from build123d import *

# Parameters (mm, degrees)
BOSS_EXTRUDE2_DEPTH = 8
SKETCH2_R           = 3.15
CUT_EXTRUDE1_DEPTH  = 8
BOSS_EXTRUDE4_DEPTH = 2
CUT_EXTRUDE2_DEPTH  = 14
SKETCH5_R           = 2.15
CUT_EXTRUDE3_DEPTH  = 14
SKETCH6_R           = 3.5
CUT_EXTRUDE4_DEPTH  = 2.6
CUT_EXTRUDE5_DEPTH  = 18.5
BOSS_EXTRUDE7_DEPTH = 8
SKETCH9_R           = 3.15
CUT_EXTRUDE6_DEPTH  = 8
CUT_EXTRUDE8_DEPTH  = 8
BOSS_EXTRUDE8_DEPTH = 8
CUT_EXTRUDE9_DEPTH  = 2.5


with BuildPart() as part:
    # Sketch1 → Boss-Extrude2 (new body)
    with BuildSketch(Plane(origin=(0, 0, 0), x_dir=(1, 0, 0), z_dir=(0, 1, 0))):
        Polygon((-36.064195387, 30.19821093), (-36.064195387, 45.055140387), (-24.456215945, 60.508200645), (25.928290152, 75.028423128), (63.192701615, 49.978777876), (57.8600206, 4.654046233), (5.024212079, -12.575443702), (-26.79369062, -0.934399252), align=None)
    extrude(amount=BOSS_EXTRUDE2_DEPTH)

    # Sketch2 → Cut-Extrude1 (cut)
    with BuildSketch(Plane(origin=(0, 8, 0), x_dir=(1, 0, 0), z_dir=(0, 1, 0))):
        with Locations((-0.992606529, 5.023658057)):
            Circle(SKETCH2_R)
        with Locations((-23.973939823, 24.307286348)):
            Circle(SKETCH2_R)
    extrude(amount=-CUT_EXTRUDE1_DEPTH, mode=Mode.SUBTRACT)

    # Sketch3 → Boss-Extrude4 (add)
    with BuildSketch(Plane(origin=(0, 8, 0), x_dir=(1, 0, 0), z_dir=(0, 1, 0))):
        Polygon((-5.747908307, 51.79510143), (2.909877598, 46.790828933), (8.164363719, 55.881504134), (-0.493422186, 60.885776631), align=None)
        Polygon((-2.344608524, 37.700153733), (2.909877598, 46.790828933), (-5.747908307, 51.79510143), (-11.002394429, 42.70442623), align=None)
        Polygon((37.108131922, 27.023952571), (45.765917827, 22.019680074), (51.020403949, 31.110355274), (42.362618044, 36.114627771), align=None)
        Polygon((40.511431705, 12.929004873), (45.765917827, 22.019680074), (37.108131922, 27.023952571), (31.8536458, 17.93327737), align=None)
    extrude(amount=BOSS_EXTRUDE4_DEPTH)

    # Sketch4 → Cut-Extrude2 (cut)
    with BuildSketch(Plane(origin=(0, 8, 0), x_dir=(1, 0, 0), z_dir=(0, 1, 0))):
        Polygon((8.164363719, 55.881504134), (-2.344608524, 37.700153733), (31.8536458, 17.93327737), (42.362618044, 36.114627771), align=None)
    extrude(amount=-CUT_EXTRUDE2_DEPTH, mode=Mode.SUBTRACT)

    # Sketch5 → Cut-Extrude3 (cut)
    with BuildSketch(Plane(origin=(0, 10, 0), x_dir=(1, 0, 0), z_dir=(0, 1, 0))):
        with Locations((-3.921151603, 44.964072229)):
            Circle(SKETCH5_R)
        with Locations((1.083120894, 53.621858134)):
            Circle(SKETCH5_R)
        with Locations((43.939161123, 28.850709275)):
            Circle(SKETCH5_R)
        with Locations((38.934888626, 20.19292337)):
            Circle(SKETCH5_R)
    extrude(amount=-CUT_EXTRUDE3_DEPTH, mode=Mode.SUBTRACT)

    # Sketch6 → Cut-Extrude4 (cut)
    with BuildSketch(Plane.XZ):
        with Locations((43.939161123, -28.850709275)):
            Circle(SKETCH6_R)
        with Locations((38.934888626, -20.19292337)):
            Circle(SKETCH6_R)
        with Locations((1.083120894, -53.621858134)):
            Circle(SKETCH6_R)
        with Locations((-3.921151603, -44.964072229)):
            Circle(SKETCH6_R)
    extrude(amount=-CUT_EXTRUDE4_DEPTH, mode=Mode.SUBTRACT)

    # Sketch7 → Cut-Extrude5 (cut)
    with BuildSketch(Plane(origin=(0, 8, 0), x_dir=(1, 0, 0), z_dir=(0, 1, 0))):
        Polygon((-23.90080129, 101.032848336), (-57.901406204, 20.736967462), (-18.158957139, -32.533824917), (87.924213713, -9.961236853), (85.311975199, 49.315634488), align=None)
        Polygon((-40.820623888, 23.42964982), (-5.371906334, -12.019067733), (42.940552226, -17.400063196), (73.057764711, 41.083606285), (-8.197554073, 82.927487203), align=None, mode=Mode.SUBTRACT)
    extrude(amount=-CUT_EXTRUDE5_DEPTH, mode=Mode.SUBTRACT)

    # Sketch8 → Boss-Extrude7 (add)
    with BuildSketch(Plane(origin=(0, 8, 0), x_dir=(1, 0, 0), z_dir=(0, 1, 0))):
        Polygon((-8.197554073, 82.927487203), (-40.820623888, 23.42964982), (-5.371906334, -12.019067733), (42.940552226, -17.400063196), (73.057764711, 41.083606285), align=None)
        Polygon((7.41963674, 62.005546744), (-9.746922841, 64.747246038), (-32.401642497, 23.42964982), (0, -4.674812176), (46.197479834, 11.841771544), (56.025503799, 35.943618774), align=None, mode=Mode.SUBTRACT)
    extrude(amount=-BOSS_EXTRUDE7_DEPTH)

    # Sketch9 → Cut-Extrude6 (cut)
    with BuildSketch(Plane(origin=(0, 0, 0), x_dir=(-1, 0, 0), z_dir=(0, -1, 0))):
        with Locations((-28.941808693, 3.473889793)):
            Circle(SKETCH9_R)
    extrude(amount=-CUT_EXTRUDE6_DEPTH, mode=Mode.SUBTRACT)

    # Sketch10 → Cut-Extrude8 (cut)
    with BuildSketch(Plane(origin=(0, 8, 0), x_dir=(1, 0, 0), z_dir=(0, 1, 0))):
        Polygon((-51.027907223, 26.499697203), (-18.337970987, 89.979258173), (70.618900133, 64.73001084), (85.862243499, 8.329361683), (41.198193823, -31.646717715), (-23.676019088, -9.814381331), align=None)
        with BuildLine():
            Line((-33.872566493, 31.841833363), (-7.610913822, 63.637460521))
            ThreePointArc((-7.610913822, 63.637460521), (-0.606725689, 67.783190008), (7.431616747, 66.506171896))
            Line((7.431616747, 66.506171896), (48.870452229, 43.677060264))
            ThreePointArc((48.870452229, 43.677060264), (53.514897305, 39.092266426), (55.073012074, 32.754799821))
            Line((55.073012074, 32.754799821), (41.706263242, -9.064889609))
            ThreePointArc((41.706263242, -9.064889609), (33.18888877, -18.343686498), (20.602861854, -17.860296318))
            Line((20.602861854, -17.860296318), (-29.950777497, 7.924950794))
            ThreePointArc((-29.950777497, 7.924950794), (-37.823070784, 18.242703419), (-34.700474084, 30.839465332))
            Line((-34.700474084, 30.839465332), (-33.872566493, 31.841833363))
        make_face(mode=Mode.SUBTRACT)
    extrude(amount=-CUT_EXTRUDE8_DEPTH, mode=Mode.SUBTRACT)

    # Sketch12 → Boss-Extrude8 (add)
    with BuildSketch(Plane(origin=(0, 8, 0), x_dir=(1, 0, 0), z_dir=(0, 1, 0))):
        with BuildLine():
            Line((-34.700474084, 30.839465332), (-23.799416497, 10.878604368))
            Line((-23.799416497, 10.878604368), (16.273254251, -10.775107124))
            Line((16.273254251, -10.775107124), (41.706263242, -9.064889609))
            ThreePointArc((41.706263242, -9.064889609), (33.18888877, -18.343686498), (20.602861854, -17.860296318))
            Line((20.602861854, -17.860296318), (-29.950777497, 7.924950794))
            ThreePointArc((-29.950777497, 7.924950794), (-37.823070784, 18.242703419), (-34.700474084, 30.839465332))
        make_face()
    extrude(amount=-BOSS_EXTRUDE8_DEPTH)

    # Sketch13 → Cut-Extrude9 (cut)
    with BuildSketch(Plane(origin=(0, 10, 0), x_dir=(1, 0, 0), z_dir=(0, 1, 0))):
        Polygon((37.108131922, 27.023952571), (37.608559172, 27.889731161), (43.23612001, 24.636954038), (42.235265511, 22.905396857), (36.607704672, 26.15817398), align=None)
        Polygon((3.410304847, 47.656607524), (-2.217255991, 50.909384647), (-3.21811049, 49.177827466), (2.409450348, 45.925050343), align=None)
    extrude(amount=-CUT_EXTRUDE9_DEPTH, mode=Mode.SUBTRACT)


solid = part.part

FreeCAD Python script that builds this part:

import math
import FreeCAD as App
import Part
import Sketcher

V = App.Vector
Q = App.Units.Quantity


def add_polygon(sketch, points):
    """Adds a closed chain of lines whose ends are joined by coincident constraints."""
    first, n = sketch.GeometryCount, len(points)
    for a, b in zip(points, points[1:] + points[:1]):
        sketch.addGeometry(Part.LineSegment(App.Vector(*a, 0), App.Vector(*b, 0)), False)
    for i in range(n):
        sketch.addConstraint(Sketcher.Constraint("Coincident", first + i, 2, first + (i + 1) % n, 1))

doc = App.newDocument("Part")
body = doc.addObject("PartDesign::Body", "Body")

sketch1 = body.newObject("Sketcher::SketchObject", "Sketch")
sketch1.AttachmentSupport = (doc.getObject("XZ_Plane"), [""])
sketch1.MapMode = "FlatFace"
add_polygon(sketch1, [(-36.064195, -45.05514), (-36.064195, -30.198211), (-26.793691, 0.934399), (5.024212, 12.575444), (57.860021, -4.654046), (63.192702, -49.978778), (25.92829, -75.028423), (-24.456216, -60.508201)])
sketch1.addConstraint(Sketcher.Constraint("Vertical", 0))
sketch1.addConstraint(Sketcher.Constraint("DistanceY", 0, 1, 0, 2, 14.856929))
sketch1.addConstraint(Sketcher.Constraint("DistanceY", -1, 1, 1, 2, 0.934399))
sketch1.addConstraint(Sketcher.Constraint("DistanceX", -1, 1, 4, 2, 63.192702))
sketch1.addConstraint(Sketcher.Constraint("DistanceY", 6, 2, -1, 1, 60.508201))
sketch1.addConstraint(Sketcher.Constraint("Distance", 1, 32.48356))
sketch1.addConstraint(Sketcher.Constraint("Distance", 4, 45.637362))
sketch1.addConstraint(Sketcher.Constraint("Distance", 6, 52.435058))
sketch1.addConstraint(Sketcher.Constraint("Distance", 7, 19.327241))
sketch1.addConstraint(Sketcher.Constraint("DistanceY", 0, 2, -1, 1, 30.198211))
sketch1.addConstraint(Sketcher.Constraint("DistanceX", 1, 2, -1, 1, 26.793691))
sketch1.addConstraint(Sketcher.Constraint("DistanceX", -1, 1, 3, 2, 57.860021))
sketch1.addConstraint(Sketcher.Constraint("DistanceX", -1, 1, 5, 2, 25.92829))
sketch1.addConstraint(Sketcher.Constraint("DistanceX", 2, 2, 3, 2, 52.835809))
sketch1.addConstraint(Sketcher.Constraint("DistanceY", 3, 2, 2, 2, 17.22949))
sketch1.addConstraint(Sketcher.Constraint("Distance", 2, 33.880567))
pad1 = body.newObject("PartDesign::Pad", "Pad")
pad1.Profile = sketch1
pad1.Length = 8
pad1.Reversed = True

sketch2 = body.newObject("Sketcher::SketchObject", "Sketch001")
sketch2.AttachmentSupport = (doc.getObject("XZ_Plane"), [""])
sketch2.MapMode = "FlatFace"
sketch2.AttachmentOffset = App.Placement(V(0, 0, -8), App.Rotation())
sketch2.addGeometry(Part.Circle(V(-0.992607, -5.023658, 0), V(0, 0, 1), 3.15), False)
sketch2.addGeometry(Part.Circle(V(-23.97394, -24.307286, 0), V(0, 0, 1), 3.15), False)
sketch2.addConstraint(Sketcher.Constraint("Equal", 0, 1))
sketch2.addConstraint(Sketcher.Constraint("Diameter", 0, 6.3))
sketch2.addConstraint(Sketcher.Constraint("DistanceY", 0, 3, -1, 1, 5.023658))
sketch2.addConstraint(Sketcher.Constraint("DistanceX", 1, 3, -1, 1, 23.97394))
sketch2.addConstraint(Sketcher.Constraint("DistanceY", 1, 3, 0, 3, 19.283628))
sketch2.addConstraint(Sketcher.Constraint("DistanceX", 0, 3, -1, 1, 0.992607))
pocket1 = body.newObject("PartDesign::Pocket", "Pocket")
pocket1.Profile = sketch2
pocket1.Length = 8
pocket1.Reversed = True

sketch3 = body.newObject("Sketcher::SketchObject", "Sketch002")
sketch3.AttachmentSupport = (doc.getObject("XZ_Plane"), [""])
sketch3.MapMode = "FlatFace"
sketch3.AttachmentOffset = App.Placement(V(0, 0, -8), App.Rotation())
add_polygon(sketch3, [(2.909878, -46.790829), (8.164364, -55.881504), (-0.493422, -60.885777), (-5.747908, -51.795101), (-11.002394, -42.704426), (-2.344609, -37.700154)])
add_polygon(sketch3, [(45.765918, -22.01968), (51.020404, -31.110355), (42.362618, -36.114628), (37.108132, -27.023953), (31.853646, -17.933277), (40.511432, -12.929005)])
sketch3.addConstraint(Sketcher.Constraint("Perpendicular", 0, 1))
sketch3.addConstraint(Sketcher.Constraint("Perpendicular", 1, 2))
sketch3.addConstraint(Sketcher.Constraint("Parallel", 2, 3))
sketch3.addConstraint(Sketcher.Constraint("Perpendicular", 3, 4))
sketch3.addConstraint(Sketcher.Constraint("Perpendicular", 4, 5))
sketch3.addConstraint(Sketcher.Constraint("Parallel", 5, 6))
sketch3.addConstraint(Sketcher.Constraint("Perpendicular", 6, 7))
sketch3.addConstraint(Sketcher.Constraint("Perpendicular", 7, 8))
sketch3.addConstraint(Sketcher.Constraint("Parallel", 8, 9))
sketch3.addConstraint(Sketcher.Constraint("Perpendicular", 9, 10))
sketch3.addConstraint(Sketcher.Constraint("Perpendicular", 10, 11))
sketch3.addConstraint(Sketcher.Constraint("Equal", 0, 2))
sketch3.addConstraint(Sketcher.Constraint("Equal", 2, 3))
sketch3.addConstraint(Sketcher.Constraint("Equal", 5, 6))
sketch3.addConstraint(Sketcher.Constraint("Equal", 4, 7))
sketch3.addConstraint(Sketcher.Constraint("Equal", 6, 8))
sketch3.addConstraint(Sketcher.Constraint("Equal", 8, 9))
sketch3.addConstraint(Sketcher.Constraint("Distance", 1, 10.0))
sketch3.addConstraint(Sketcher.Constraint("Distance", 0, 10.5))
sketch3.addConstraint(Sketcher.Constraint("DistanceY", 2, 2, -1, 1, 51.795101))
sketch3.addConstraint(Sketcher.Constraint("DistanceX", 2, 2, 4, 2, 3.4033))
sketch3.addConstraint(Sketcher.Constraint("DistanceY", 4, 2, 6, 2, 6.589798))
sketch3.addConstraint(Sketcher.Constraint("DistanceX", 2, 2, -1, 1, 5.747908))
sketch3.addConstraint(Sketcher.Constraint("DistanceX", -1, 1, 7, 2, 42.362618))
pad2 = body.newObject("PartDesign::Pad", "Pad001")
pad2.Profile = sketch3
pad2.Length = 2
pad2.Reversed = True

sketch4 = body.newObject("Sketcher::SketchObject", "Sketch003")
sketch4.AttachmentSupport = (doc.getObject("XZ_Plane"), [""])
sketch4.MapMode = "FlatFace"
sketch4.AttachmentOffset = App.Placement(V(0, 0, -8), App.Rotation())
add_polygon(sketch4, [(8.164364, -55.881504), (-2.344609, -37.700154), (31.853646, -17.933277), (42.362618, -36.114628)])
sketch4.addConstraint(Sketcher.Constraint("Perpendicular", 0, 1))
sketch4.addConstraint(Sketcher.Constraint("Perpendicular", 1, 2))
sketch4.addConstraint(Sketcher.Constraint("Perpendicular", 2, 3))
sketch4.addConstraint(Sketcher.Constraint("Distance", 0, 21.0))
sketch4.addConstraint(Sketcher.Constraint("Distance", 1, 39.5))
sketch4.addConstraint(Sketcher.Constraint("DistanceX", 0, 2, -1, 1, 2.344609))
sketch4.addConstraint(Sketcher.Constraint("DistanceX", -1, 1, 2, 2, 42.362618))
sketch4.addConstraint(Sketcher.Constraint("DistanceY", 0, 2, -1, 1, 37.700154))
pocket2 = body.newObject("PartDesign::Pocket", "Pocket001")
pocket2.Profile = sketch4
pocket2.Length = 14
pocket2.Reversed = True

sketch5 = body.newObject("Sketcher::SketchObject", "Sketch004")
sketch5.AttachmentSupport = (doc.getObject("XZ_Plane"), [""])
sketch5.MapMode = "FlatFace"
sketch5.AttachmentOffset = App.Placement(V(0, 0, -10), App.Rotation())
sketch5.addGeometry(Part.Circle(V(-3.921152, -44.964072, 0), V(0, 0, 1), 2.15), False)
sketch5.addGeometry(Part.Circle(V(1.083121, -53.621858, 0), V(0, 0, 1), 2.15), False)
sketch5.addGeometry(Part.Circle(V(43.939161, -28.850709, 0), V(0, 0, 1), 2.15), False)
sketch5.addGeometry(Part.Circle(V(38.934889, -20.192923, 0), V(0, 0, 1), 2.15), False)
sketch5.addConstraint(Sketcher.Constraint("Equal", 0, 1))
sketch5.addConstraint(Sketcher.Constraint("Equal", 1, 2))
sketch5.addConstraint(Sketcher.Constraint("Equal", 2, 3))
sketch5.addConstraint(Sketcher.Constraint("Diameter", 0, 4.3))
sketch5.addConstraint(Sketcher.Constraint("DistanceX", 0, 3, -1, 1, 3.921152))
sketch5.addConstraint(Sketcher.Constraint("DistanceX", -1, 1, 1, 3, 1.083121))
sketch5.addConstraint(Sketcher.Constraint("DistanceY", 1, 3, -1, 1, 53.621858))
sketch5.addConstraint(Sketcher.Constraint("DistanceX", -1, 1, 2, 3, 43.939161))
sketch5.addConstraint(Sketcher.Constraint("DistanceY", 2, 3, -1, 1, 28.850709))
sketch5.addConstraint(Sketcher.Constraint("DistanceX", -1, 1, 3, 3, 38.934889))
sketch5.addConstraint(Sketcher.Constraint("DistanceY", 0, 3, 3, 3, 24.771149))
sketch5.addConstraint(Sketcher.Constraint("DistanceY", 0, 3, -1, 1, 44.964072))
pocket3 = body.newObject("PartDesign::Pocket", "Pocket002")
pocket3.Profile = sketch5
pocket3.Length = 14
pocket3.Reversed = True

sketch6 = body.newObject("Sketcher::SketchObject", "Sketch005")
sketch6.AttachmentSupport = (doc.getObject("XZ_Plane"), [""])
sketch6.MapMode = "FlatFace"
sketch6.addGeometry(Part.Circle(V(43.939161, -28.850709, 0), V(0, 0, 1), 3.5), False)
sketch6.addGeometry(Part.Circle(V(38.934889, -20.192923, 0), V(0, 0, 1), 3.5), False)
sketch6.addGeometry(Part.Circle(V(1.083121, -53.621858, 0), V(0, 0, 1), 3.5), False)
sketch6.addGeometry(Part.Circle(V(-3.921152, -44.964072, 0), V(0, 0, 1), 3.5), False)
sketch6.addConstraint(Sketcher.Constraint("Equal", 0, 1))
sketch6.addConstraint(Sketcher.Constraint("Equal", 1, 2))
sketch6.addConstraint(Sketcher.Constraint("Equal", 2, 3))
sketch6.addConstraint(Sketcher.Constraint("Diameter", 0, 7.0))
sketch6.addConstraint(Sketcher.Constraint("DistanceX", -1, 1, 0, 3, 43.939161))
sketch6.addConstraint(Sketcher.Constraint("DistanceY", 0, 3, -1, 1, 28.850709))
sketch6.addConstraint(Sketcher.Constraint("DistanceX", -1, 1, 1, 3, 38.934889))
sketch6.addConstraint(Sketcher.Constraint("DistanceX", -1, 1, 2, 3, 1.083121))
sketch6.addConstraint(Sketcher.Constraint("DistanceY", 2, 3, -1, 1, 53.621858))
sketch6.addConstraint(Sketcher.Constraint("DistanceX", 3, 3, -1, 1, 3.921152))
sketch6.addConstraint(Sketcher.Constraint("DistanceY", 3, 3, 1, 3, 24.771149))
sketch6.addConstraint(Sketcher.Constraint("DistanceY", 1, 3, -1, 1, 20.192923))
pocket4 = body.newObject("PartDesign::Pocket", "Pocket003")
pocket4.Profile = sketch6
pocket4.Length = 2.6

sketch7 = body.newObject("Sketcher::SketchObject", "Sketch006")
sketch7.AttachmentSupport = (doc.getObject("XZ_Plane"), [""])
sketch7.MapMode = "FlatFace"
sketch7.AttachmentOffset = App.Placement(V(0, 0, -8), App.Rotation())
add_polygon(sketch7, [(-23.900801, -101.032848), (-57.901406, -20.736967), (-18.158957, 32.533825), (87.924214, 9.961237), (85.311975, -49.315634)])
add_polygon(sketch7, [(-5.371906, 12.019068), (-40.820624, -23.42965), (-8.197554, -82.927487), (73.057765, -41.083606), (42.940552, 17.400063)])
sketch7.addConstraint(Sketcher.Constraint("Perpendicular", 7, 8))
sketch7.addConstraint(Sketcher.Constraint("Angle", 5, Q("-135 deg")))
sketch7.addConstraint(Sketcher.Constraint("Distance", 9, 48.6112))
sketch7.addConstraint(Sketcher.Constraint("DistanceX", 4, 2, -1, 1, 23.900801))
sketch7.addConstraint(Sketcher.Constraint("DistanceY", 4, 2, 5, 2, 77.603199))
sketch7.addConstraint(Sketcher.Constraint("DistanceX", 5, 2, 3, 2, 126.132599))
sketch7.addConstraint(Sketcher.Constraint("DistanceX", 0, 2, 9, 2, 52.5295))
sketch7.addConstraint(Sketcher.Constraint("Distance", 6, 67.854678))
sketch7.addConstraint(Sketcher.Constraint("Distance", 8, 65.782871))
sketch7.addConstraint(Sketcher.Constraint("DistanceY", 4, 2, -1, 1, 101.032848))
sketch7.addConstraint(Sketcher.Constraint("DistanceX", 0, 2, 1, 2, 39.742449))
sketch7.addConstraint(Sketcher.Constraint("DistanceX", 1, 2, 2, 2, 106.083171))
sketch7.addConstraint(Sketcher.Constraint("DistanceY", 2, 2, 1, 2, 22.572588))
sketch7.addConstraint(Sketcher.Constraint("DistanceX", 3, 2, 2, 2, 2.612239))
sketch7.addConstraint(Sketcher.Constraint("DistanceY", 3, 2, 2, 2, 59.276871))
sketch7.addConstraint(Sketcher.Constraint("DistanceY", 4, 2, 0, 2, 80.295881))
sketch7.addConstraint(Sketcher.Constraint("DistanceY", 4, 2, 6, 2, 18.105361))
sketch7.addConstraint(Sketcher.Constraint("DistanceX", 7, 2, 3, 2, 12.25421))
sketch7.addConstraint(Sketcher.Constraint("DistanceY", 3, 2, 7, 2, 8.232028))
sketch7.addConstraint(Sketcher.Constraint("Distance", 0, 87.197876))
pocket5 = body.newObject("PartDesign::Pocket", "Pocket004")
pocket5.Profile = sketch7
pocket5.Length = 18.5
pocket5.Reversed = True

sketch8 = body.newObject("Sketcher::SketchObject", "Sketch007")
sketch8.AttachmentSupport = (doc.getObject("XZ_Plane"), [""])
sketch8.MapMode = "FlatFace"
sketch8.AttachmentOffset = App.Placement(V(0, 0, -8), App.Rotation())
add_polygon(sketch8, [(-8.197554, -82.927487), (-40.820624, -23.42965), (-5.371906, 12.019068), (42.940552, 17.400063), (73.057765, -41.083606)])
add_polygon(sketch8, [(-9.746923, -64.747246), (7.419637, -62.005547), (56.025504, -35.943619), (46.19748, -11.841772), (0, 4.674812), (-32.401642, -23.42965)])
sketch8.addConstraint(Sketcher.Constraint("PointOnObject", 8, 2, -2))
sketch8.addConstraint(Sketcher.Constraint("Distance", 2, 48.6112))
sketch8.addConstraint(Sketcher.Constraint("DistanceY", 10, 2, 5, 2, 2.741699))
sketch8.addConstraint(Sketcher.Constraint("DistanceX", 0, 2, 10, 2, 31.073701))
sketch8.addConstraint(Sketcher.Constraint("Distance", 0, 67.854678))
sketch8.addConstraint(Sketcher.Constraint("Distance", 3, 65.782871))
sketch8.addConstraint(Sketcher.Constraint("Distance", 5, 17.384122))
sketch8.addConstraint(Sketcher.Constraint("Distance", 7, 26.028621))
sketch8.addConstraint(Sketcher.Constraint("Distance", 9, 42.892041))
sketch8.addConstraint(Sketcher.Constraint("Distance", 10, 47.120909))
sketch8.addConstraint(Sketcher.Constraint("DistanceY", 0, 2, -1, 1, 23.42965))
sketch8.addConstraint(Sketcher.Constraint("DistanceY", 6, 2, -1, 1, 35.943619))
sketch8.addConstraint(Sketcher.Constraint("DistanceX", -1, 1, 7, 2, 46.19748))
sketch8.addConstraint(Sketcher.Constraint("DistanceY", 7, 2, -1, 1, 11.841772))
sketch8.addConstraint(Sketcher.Constraint("DistanceY", 9, 2, -1, 1, 23.42965))
sketch8.addConstraint(Sketcher.Constraint("DistanceX", 1, 2, 2, 2, 48.312459))
sketch8.addConstraint(Sketcher.Constraint("DistanceY", 3, 2, 2, 2, 58.483669))
sketch8.addConstraint(Sketcher.Constraint("DistanceX", 0, 2, 3, 2, 113.878389))
sketch8.addConstraint(Sketcher.Constraint("DistanceX", 0, 2, 4, 2, 32.62307))
sketch8.addConstraint(Sketcher.Constraint("DistanceY", 4, 2, 3, 2, 41.843881))
sketch8.addConstraint(Sketcher.Constraint("DistanceY", 4, 2, 5, 2, 20.92194))
sketch8.addConstraint(Sketcher.Constraint("DistanceX", 6, 2, 3, 2, 17.032261))
pad3 = body.newObject("PartDesign::Pad", "Pad002")
pad3.Profile = sketch8
pad3.Length = 8

sketch9 = body.newObject("Sketcher::SketchObject", "Sketch008")
sketch9.AttachmentSupport = (doc.getObject("XZ_Plane"), [""])
sketch9.MapMode = "FlatFace"
sketch9.addGeometry(Part.Circle(V(28.941809, -3.47389, 0), V(0, 0, 1), 3.15), False)
sketch9.addConstraint(Sketcher.Constraint("Diameter", 0, 6.3))
sketch9.addConstraint(Sketcher.Constraint("DistanceX", -1, 1, 0, 3, 28.941809))
sketch9.addConstraint(Sketcher.Constraint("DistanceY", 0, 3, -1, 1, 3.47389))
pocket6 = body.newObject("PartDesign::Pocket", "Pocket005")
pocket6.Profile = sketch9
pocket6.Length = 8

sketch10 = body.newObject("Sketcher::SketchObject", "Sketch009")
sketch10.AttachmentSupport = (doc.getObject("XZ_Plane"), [""])
sketch10.MapMode = "FlatFace"
sketch10.AttachmentOffset = App.Placement(V(0, 0, -8), App.Rotation())
add_polygon(sketch10, [(-18.337971, -89.979258), (-51.027907, -26.499697), (-23.676019, 9.814381), (41.198194, 31.646718), (85.862243, -8.329362), (70.6189, -64.730011)])
sketch10.addGeometry(Part.LineSegment(V(-33.872566, -31.841833, 0), V(-7.610914, -63.637461, 0)), False)
sketch10.addGeometry(Part.ArcOfCircle(Part.Circle(V(1.641242, -55.995627, 0), V(0, 0, 1), 12), math.radians(-140.444938), math.radians(-61.149146)), False)
sketch10.addGeometry(Part.LineSegment(V(7.431617, -66.506172, 0), V(48.870452, -43.67706, 0)), False)
sketch10.addGeometry(Part.ArcOfCircle(Part.Circle(V(43.080077, -33.166515, 0), V(0, 0, 1), 12), math.radians(-61.149146), math.radians(1.966183)), False)
sketch10.addGeometry(Part.LineSegment(V(55.073012, -32.7548, 0), V(41.706263, 9.06489, 0)), False)
sketch10.addGeometry(Part.ArcOfCircle(Part.Circle(V(27.41836, 4.498074, 0), V(0, 0, 1), 15), math.radians(17.725342), math.radians(117.024182)), False)
sketch10.addGeometry(Part.LineSegment(V(20.602862, 17.860296, 0), V(-29.950777, -7.924951, 0)), False)
sketch10.addGeometry(Part.ArcOfCircle(Part.Circle(V(-23.13528, -21.287173, 0), V(0, 0, 1), 15), math.radians(117.024182), math.radians(219.555062)), False)
sketch10.addGeometry(Part.LineSegment(V(-34.700474, -30.839465, 0), V(-33.872566, -31.841833, 0)), False)
sketch10.addConstraint(Sketcher.Constraint("Tangent", 6, 2, 7, 1))
sketch10.addConstraint(Sketcher.Constraint("Tangent", 7, 2, 8, 1))
sketch10.addConstraint(Sketcher.Constraint("Tangent", 8, 2, 9, 1))
sketch10.addConstraint(Sketcher.Constraint("Coincident", 9, 2, 10, 1))
sketch10.addConstraint(Sketcher.Constraint("Tangent", 10, 2, 11, 1))
sketch10.addConstraint(Sketcher.Constraint("Tangent", 11, 2, 12, 1))
sketch10.addConstraint(Sketcher.Constraint("Tangent", 12, 2, 13, 1))
sketch10.addConstraint(Sketcher.Constraint("Tangent", 13, 2, 14, 1))
sketch10.addConstraint(Sketcher.Constraint("Coincident", 14, 2, 6, 1))
sketch10.addConstraint(Sketcher.Constraint("Equal", 7, 9))
sketch10.addConstraint(Sketcher.Constraint("Equal", 11, 13))
sketch10.addConstraint(Sketcher.Constraint("Parallel", 6, 14))
sketch10.addConstraint(Sketcher.Constraint("Radius", 7, 12.0))
sketch10.addConstraint(Sketcher.Constraint("Radius", 11, 15.0))
sketch10.addConstraint(Sketcher.Constraint("DistanceX", 7, 3, 3, 2, 84.221002))
sketch10.addConstraint(Sketcher.Constraint("DistanceY", 7, 2, 13, 3, 45.218999))
sketch10.addConstraint(Sketcher.Constraint("DistanceX", -1, 1, 4, 2, 70.6189))
sketch10.addConstraint(Sketcher.Constraint("DistanceY", 9, 2, -1, 1, 32.7548))
sketch10.addConstraint(Sketcher.Constraint("DistanceY", 7, 3, 11, 3, 60.493701))
sketch10.addConstraint(Sketcher.Constraint("DistanceY", 8, 2, 3, 2, 35.347699))
sketch10.addConstraint(Sketcher.Constraint("DistanceX", 11, 2, 10, 2, 21.103401))
sketch10.addConstraint(Sketcher.Constraint("Distance", 1, 45.462491))
sketch10.addConstraint(Sketcher.Constraint("Distance", 3, 59.94134))
sketch10.addConstraint(Sketcher.Constraint("Distance", 6, 41.238772))
sketch10.addConstraint(Sketcher.Constraint("DistanceX", -1, 1, 7, 3, 1.641242))
sketch10.addConstraint(Sketcher.Constraint("DistanceX", -1, 1, 11, 3, 27.41836))
sketch10.addConstraint(Sketcher.Constraint("DistanceX", 13, 3, -1, 1, 23.13528))
sketch10.addConstraint(Sketcher.Constraint("DistanceX", 1, 2, -1, 1, 23.676019))
sketch10.addConstraint(Sketcher.Constraint("DistanceY", -1, 1, 1, 2, 9.814381))
sketch10.addConstraint(Sketcher.Constraint("DistanceY", 3, 2, -1, 1, 8.329362))
sketch10.addConstraint(Sketcher.Constraint("DistanceY", 4, 2, -1, 1, 64.730011))
sketch10.addConstraint(Sketcher.Constraint("DistanceX", 5, 2, -1, 1, 18.337971))
sketch10.addConstraint(Sketcher.Constraint("DistanceY", 5, 2, -1, 1, 89.979258))
sketch10.addConstraint(Sketcher.Constraint("DistanceY", 6, 2, -1, 1, 63.637461))
sketch10.addConstraint(Sketcher.Constraint("DistanceX", 0, 2, 7, 3, 52.669149))
sketch10.addConstraint(Sketcher.Constraint("DistanceY", 13, 3, 2, 2, 52.933891))
pocket7 = body.newObject("PartDesign::Pocket", "Pocket006")
pocket7.Profile = sketch10
pocket7.Length = 8
pocket7.Reversed = True

sketch11 = body.newObject("Sketcher::SketchObject", "Sketch010")
sketch11.AttachmentSupport = (doc.getObject("XZ_Plane"), [""])
sketch11.MapMode = "FlatFace"
sketch11.AttachmentOffset = App.Placement(V(0, 0, -8), App.Rotation())
sketch11.addGeometry(Part.LineSegment(V(-23.799416, -10.878604, 0), V(-34.700474, -30.839465, 0)), False)
sketch11.addGeometry(Part.ArcOfCircle(Part.Circle(V(-23.13528, -21.287173, 0), V(0, 0, 1), 15), math.radians(117.024182), math.radians(219.555062)), False)
sketch11.addGeometry(Part.LineSegment(V(-29.950777, -7.924951, 0), V(20.602862, 17.860296, 0)), False)
sketch11.addGeometry(Part.ArcOfCircle(Part.Circle(V(27.41836, 4.498074, 0), V(0, 0, 1), 15), math.radians(17.725342), math.radians(117.024182)), False)
sketch11.addGeometry(Part.LineSegment(V(41.706263, 9.06489, 0), V(16.273254, 10.775107, 0)), False)
sketch11.addGeometry(Part.LineSegment(V(16.273254, 10.775107, 0), V(-23.799416, -10.878604, 0)), False)
sketch11.addConstraint(Sketcher.Constraint("Coincident", 0, 2, 1, 2))
sketch11.addConstraint(Sketcher.Constraint("Tangent", 1, 1, 2, 1))
sketch11.addConstraint(Sketcher.Constraint("Tangent", 2, 2, 3, 2))
sketch11.addConstraint(Sketcher.Constraint("Coincident", 3, 1, 4, 1))
sketch11.addConstraint(Sketcher.Constraint("Coincident", 4, 2, 5, 1))
sketch11.addConstraint(Sketcher.Constraint("Coincident", 5, 2, 0, 1))
sketch11.addConstraint(Sketcher.Constraint("Equal", 1, 3))
sketch11.addConstraint(Sketcher.Constraint("Radius", 1, 15.0))
sketch11.addConstraint(Sketcher.Constraint("Distance", 5, 45.548899))
sketch11.addConstraint(Sketcher.Constraint("DistanceX", 2, 2, 3, 1, 21.103401))
sketch11.addConstraint(Sketcher.Constraint("DistanceY", 5, 2, 2, 2, 28.738901))
sketch11.addConstraint(Sketcher.Constraint("Distance", 0, 22.743549))
sketch11.addConstraint(Sketcher.Constraint("DistanceX", 1, 3, -1, 1, 23.13528))
sketch11.addConstraint(Sketcher.Constraint("DistanceX", -1, 1, 3, 3, 27.41836))
sketch11.addConstraint(Sketcher.Constraint("DistanceY", 1, 1, -1, 1, 7.924951))
sketch11.addConstraint(Sketcher.Constraint("DistanceX", -1, 1, 2, 2, 20.602862))
sketch11.addConstraint(Sketcher.Constraint("DistanceY", 0, 2, 1, 3, 9.552292))
sketch11.addConstraint(Sketcher.Constraint("DistanceY", 4, 2, 2, 2, 7.085189))
pad4 = body.newObject("PartDesign::Pad", "Pad003")
pad4.Profile = sketch11
pad4.Length = 8

sketch12 = body.newObject("Sketcher::SketchObject", "Sketch011")
sketch12.AttachmentSupport = (doc.getObject("XZ_Plane"), [""])
sketch12.MapMode = "FlatFace"
sketch12.AttachmentOffset = App.Placement(V(0, 0, -10), App.Rotation())
add_polygon(sketch12, [(37.608559, -27.889731), (37.108132, -27.023953), (36.607705, -26.158174), (42.235266, -22.905397), (43.23612, -24.636954)])
add_polygon(sketch12, [(3.410305, -47.656608), (-2.217256, -50.909385), (-3.21811, -49.177827), (2.40945, -45.92505)])
sketch12.addConstraint(Sketcher.Constraint("Parallel", 0, 1))
sketch12.addConstraint(Sketcher.Constraint("Perpendicular", 1, 2))
sketch12.addConstraint(Sketcher.Constraint("Perpendicular", 2, 3))
sketch12.addConstraint(Sketcher.Constraint("Perpendicular", 3, 4))
sketch12.addConstraint(Sketcher.Constraint("Parallel", 4, 5))
sketch12.addConstraint(Sketcher.Constraint("Perpendicular", 5, 6))
sketch12.addConstraint(Sketcher.Constraint("Perpendicular", 6, 7))
sketch12.addConstraint(Sketcher.Constraint("Perpendicular", 7, 8))
sketch12.addConstraint(Sketcher.Constraint("Equal", 0, 1))
sketch12.addConstraint(Sketcher.Constraint("Equal", 4, 5))
sketch12.addConstraint(Sketcher.Constraint("Equal", 3, 6))
sketch12.addConstraint(Sketcher.Constraint("Distance", 0, 1.0))
sketch12.addConstraint(Sketcher.Constraint("Distance", 2, 6.5))
sketch12.addConstraint(Sketcher.Constraint("DistanceY", 0, 2, 3, 2, 2.386999))
sketch12.addConstraint(Sketcher.Constraint("DistanceX", -1, 1, 0, 2, 37.108132))
sketch12.addConstraint(Sketcher.Constraint("DistanceY", 4, 2, -1, 1, 27.889731))
sketch12.addConstraint(Sketcher.Constraint("DistanceX", 6, 2, -1, 1, 3.21811))
sketch12.addConstraint(Sketcher.Constraint("DistanceY", 7, 2, -1, 1, 45.92505))
pocket8 = body.newObject("PartDesign::Pocket", "Pocket007")
pocket8.Profile = sketch12
pocket8.Length = 2.5
pocket8.Reversed = True

doc.recompute()
